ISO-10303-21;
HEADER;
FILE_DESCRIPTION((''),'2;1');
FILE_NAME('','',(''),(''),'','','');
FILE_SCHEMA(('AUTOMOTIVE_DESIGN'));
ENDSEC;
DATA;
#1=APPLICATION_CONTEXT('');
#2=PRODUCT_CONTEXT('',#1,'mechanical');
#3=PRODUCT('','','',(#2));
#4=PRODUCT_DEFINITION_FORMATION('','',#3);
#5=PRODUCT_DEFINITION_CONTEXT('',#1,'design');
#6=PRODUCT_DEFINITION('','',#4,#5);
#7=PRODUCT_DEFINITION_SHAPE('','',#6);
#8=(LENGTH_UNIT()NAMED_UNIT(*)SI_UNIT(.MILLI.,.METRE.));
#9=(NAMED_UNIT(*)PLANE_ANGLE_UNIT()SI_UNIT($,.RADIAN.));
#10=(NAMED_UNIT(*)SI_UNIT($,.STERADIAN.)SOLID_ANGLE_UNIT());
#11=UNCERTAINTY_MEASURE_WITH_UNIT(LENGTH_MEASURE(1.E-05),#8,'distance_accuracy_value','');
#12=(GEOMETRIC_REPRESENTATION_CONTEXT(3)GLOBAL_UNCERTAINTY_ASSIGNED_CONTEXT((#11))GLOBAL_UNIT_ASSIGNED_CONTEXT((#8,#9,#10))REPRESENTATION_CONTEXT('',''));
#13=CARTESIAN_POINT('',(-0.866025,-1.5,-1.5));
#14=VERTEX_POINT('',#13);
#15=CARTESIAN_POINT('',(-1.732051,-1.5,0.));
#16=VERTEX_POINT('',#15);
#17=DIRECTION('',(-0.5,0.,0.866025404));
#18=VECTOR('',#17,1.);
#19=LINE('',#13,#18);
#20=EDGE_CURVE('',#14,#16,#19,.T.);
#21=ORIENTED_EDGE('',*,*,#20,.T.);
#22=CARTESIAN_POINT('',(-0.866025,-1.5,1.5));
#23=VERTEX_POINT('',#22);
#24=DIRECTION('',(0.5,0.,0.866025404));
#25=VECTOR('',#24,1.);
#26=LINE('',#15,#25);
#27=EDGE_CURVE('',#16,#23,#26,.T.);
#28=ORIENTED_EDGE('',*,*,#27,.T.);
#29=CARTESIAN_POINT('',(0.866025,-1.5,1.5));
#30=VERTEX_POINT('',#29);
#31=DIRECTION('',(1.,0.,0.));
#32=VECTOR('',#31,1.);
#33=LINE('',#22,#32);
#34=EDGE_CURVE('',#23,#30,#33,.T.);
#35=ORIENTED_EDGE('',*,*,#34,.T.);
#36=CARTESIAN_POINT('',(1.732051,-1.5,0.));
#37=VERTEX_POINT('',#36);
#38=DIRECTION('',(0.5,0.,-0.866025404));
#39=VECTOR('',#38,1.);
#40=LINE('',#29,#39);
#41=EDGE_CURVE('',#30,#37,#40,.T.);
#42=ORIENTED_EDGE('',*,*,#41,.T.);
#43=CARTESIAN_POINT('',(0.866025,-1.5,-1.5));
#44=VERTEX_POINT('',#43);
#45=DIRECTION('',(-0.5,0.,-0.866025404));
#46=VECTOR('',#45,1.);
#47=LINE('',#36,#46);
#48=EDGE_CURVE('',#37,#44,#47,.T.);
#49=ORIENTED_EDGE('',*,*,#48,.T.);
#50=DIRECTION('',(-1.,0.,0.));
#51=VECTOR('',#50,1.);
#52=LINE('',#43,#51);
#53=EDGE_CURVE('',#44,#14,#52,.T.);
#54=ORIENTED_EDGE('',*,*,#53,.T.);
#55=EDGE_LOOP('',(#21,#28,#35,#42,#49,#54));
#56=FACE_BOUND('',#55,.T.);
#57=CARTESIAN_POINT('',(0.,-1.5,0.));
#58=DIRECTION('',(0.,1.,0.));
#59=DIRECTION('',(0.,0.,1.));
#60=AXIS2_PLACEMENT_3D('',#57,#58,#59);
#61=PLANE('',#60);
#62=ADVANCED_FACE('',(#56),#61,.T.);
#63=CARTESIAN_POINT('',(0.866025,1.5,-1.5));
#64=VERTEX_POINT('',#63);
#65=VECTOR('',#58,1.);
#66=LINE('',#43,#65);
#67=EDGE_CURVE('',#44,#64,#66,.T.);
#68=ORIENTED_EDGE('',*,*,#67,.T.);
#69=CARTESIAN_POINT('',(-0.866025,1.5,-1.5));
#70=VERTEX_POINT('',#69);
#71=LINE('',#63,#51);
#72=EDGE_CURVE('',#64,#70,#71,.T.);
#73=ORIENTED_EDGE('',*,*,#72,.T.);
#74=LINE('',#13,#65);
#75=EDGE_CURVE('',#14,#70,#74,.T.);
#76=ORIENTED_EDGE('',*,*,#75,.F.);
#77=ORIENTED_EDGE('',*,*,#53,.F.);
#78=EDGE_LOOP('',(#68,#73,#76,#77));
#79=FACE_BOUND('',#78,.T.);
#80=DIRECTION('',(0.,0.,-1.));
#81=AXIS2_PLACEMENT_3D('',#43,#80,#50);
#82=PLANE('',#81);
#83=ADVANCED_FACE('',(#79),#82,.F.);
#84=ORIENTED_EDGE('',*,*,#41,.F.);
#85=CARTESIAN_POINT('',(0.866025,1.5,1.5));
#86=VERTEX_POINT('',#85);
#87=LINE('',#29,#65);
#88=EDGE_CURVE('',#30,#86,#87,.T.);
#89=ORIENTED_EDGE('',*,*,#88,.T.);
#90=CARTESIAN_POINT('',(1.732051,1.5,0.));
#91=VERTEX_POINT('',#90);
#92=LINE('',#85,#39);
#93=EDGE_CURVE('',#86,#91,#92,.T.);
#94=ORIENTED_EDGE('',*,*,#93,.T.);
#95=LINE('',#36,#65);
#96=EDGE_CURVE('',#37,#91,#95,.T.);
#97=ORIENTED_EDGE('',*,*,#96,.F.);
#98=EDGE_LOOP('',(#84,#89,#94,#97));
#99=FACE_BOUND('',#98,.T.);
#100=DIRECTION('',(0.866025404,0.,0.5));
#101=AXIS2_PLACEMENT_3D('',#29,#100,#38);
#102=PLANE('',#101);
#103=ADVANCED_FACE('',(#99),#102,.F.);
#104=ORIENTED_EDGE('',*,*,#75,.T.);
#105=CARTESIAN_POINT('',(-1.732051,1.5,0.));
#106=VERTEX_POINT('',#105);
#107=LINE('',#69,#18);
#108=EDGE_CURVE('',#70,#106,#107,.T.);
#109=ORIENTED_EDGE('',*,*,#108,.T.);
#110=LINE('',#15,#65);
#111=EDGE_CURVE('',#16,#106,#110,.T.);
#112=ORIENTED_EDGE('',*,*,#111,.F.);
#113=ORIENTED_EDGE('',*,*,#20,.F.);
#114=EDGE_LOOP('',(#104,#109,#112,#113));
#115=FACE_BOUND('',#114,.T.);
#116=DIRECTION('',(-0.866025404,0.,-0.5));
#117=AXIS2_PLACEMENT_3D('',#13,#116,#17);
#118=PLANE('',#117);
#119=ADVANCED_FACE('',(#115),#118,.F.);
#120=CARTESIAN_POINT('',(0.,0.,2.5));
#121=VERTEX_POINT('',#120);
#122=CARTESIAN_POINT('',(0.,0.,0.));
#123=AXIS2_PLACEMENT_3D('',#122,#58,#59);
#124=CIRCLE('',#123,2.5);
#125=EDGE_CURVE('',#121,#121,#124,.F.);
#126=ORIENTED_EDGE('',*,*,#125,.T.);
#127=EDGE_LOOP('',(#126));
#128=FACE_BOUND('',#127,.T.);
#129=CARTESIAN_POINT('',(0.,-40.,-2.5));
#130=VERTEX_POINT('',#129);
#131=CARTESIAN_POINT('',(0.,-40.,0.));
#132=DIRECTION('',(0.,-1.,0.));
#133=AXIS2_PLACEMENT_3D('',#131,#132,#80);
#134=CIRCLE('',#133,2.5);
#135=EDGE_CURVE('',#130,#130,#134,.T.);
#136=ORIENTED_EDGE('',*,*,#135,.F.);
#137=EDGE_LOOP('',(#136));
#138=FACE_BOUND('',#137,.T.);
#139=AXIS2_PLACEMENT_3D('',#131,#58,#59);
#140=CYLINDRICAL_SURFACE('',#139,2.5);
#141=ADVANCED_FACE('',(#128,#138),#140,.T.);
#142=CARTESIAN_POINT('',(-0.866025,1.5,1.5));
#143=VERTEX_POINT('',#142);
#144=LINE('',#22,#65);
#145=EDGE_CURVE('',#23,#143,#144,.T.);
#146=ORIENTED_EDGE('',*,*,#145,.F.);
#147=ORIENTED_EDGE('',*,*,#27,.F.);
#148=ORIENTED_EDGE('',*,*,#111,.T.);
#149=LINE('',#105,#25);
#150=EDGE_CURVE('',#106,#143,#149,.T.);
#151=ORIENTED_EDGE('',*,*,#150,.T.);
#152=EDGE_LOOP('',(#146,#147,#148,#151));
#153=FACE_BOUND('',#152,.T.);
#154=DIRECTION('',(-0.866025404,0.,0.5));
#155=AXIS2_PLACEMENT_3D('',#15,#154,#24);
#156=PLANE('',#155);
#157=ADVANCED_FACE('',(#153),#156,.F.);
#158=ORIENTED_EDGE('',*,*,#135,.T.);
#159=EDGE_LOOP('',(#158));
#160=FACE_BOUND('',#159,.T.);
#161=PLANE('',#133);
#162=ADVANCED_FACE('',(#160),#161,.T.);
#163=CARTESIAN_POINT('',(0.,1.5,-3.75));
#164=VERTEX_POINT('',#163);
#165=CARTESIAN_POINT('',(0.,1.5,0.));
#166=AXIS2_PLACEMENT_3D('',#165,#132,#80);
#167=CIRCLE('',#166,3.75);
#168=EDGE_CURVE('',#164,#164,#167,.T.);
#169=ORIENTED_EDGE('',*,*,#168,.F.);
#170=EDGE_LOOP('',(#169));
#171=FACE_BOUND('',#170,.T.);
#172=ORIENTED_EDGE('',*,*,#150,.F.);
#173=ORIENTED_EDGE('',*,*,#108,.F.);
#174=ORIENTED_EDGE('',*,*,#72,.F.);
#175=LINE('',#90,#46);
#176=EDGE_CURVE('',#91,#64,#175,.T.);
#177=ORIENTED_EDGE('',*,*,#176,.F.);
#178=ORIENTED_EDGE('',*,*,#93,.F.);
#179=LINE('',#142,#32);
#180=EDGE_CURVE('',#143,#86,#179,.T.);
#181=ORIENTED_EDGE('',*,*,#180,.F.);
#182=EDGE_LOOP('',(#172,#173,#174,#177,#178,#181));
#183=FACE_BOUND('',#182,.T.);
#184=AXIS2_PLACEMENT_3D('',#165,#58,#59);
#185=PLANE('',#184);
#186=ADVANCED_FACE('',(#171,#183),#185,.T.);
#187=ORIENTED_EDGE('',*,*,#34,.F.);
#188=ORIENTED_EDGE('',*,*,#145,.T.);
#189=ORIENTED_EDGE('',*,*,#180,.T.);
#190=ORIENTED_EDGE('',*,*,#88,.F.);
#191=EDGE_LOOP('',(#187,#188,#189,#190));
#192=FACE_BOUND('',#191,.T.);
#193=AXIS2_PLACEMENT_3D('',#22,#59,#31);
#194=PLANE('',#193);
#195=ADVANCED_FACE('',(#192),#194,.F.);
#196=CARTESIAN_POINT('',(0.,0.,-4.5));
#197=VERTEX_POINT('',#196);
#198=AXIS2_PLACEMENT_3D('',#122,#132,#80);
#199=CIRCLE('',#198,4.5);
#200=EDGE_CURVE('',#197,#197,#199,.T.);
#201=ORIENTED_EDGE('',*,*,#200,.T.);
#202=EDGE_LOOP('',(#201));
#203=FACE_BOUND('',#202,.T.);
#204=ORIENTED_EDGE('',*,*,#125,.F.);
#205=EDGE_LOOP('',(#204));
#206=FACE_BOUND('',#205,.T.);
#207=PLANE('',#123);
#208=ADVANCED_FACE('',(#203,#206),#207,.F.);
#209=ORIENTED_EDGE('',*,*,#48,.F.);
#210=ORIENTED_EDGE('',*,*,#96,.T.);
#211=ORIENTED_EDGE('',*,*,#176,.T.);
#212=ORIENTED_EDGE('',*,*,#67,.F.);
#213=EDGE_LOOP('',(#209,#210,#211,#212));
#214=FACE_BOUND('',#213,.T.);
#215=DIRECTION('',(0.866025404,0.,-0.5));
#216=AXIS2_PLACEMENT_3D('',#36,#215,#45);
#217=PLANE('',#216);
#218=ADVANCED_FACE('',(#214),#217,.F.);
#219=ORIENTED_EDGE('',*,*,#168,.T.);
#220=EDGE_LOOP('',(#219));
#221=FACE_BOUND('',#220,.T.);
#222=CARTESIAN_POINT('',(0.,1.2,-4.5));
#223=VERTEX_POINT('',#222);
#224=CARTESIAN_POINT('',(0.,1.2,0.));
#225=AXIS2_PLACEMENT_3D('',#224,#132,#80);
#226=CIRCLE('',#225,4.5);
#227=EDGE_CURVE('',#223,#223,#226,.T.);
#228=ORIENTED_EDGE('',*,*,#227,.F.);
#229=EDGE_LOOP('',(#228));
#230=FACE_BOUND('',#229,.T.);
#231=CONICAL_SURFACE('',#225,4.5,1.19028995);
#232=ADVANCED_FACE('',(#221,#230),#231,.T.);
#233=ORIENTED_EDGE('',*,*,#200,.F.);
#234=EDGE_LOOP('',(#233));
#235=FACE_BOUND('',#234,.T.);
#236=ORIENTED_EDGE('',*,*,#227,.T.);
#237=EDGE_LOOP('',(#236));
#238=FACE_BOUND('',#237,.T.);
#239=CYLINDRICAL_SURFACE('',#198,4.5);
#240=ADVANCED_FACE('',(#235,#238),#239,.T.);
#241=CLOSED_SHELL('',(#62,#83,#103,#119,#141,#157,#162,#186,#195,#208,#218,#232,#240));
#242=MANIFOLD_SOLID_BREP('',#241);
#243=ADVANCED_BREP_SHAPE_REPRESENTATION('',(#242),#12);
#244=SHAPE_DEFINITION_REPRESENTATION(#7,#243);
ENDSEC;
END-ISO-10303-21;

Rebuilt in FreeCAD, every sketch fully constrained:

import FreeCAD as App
import Part
import Sketcher

V = App.Vector
Q = App.Units.Quantity


def add_polygon(sketch, points):
    """Adds a closed chain of lines whose ends are joined by coincident constraints."""
    first, n = sketch.GeometryCount, len(points)
    for a, b in zip(points, points[1:] + points[:1]):
        sketch.addGeometry(Part.LineSegment(App.Vector(*a, 0), App.Vector(*b, 0)), False)
    for i in range(n):
        sketch.addConstraint(Sketcher.Constraint("Coincident", first + i, 2, first + (i + 1) % n, 1))

doc = App.newDocument("Part")
params = doc.addObject("Spreadsheet::Sheet", "Params")
for row, (alias, value) in enumerate([
    ("sketch1_width", "4.5 mm"),
    ("sketch1_height", "1.5 mm"),
    ("sketch1_height2", "1.2 mm"),
    ("sketch1_width2", "3.75 mm"),
    ("revolution_angle", "360 deg"),
    ("sketch2_diameter", "5 mm"),
    ("pad1_length", "40 mm"),
    ("pocket1_length", "3 mm"),
], start=1):
    params.set(f"A{row}", alias)
    params.set(f"B{row}", "=" + value)
    params.setAlias(f"B{row}", alias)

body = doc.addObject("PartDesign::Body", "Body")

# Sketch on XY plane
sketch1 = body.newObject("Sketcher::SketchObject", "Sketch")
sketch1.AttachmentSupport = (doc.getObject("XY_Plane"), [""])
sketch1.MapMode = "FlatFace"
add_polygon(sketch1, [(0, 0), (0, 1.5), (-3.8, 1.5), (-4.5, 1.2), (-4.5, 0)])  # lines 0-4
sketch1.addConstraint([
    Sketcher.Constraint("Vertical", 0),
    Sketcher.Constraint("Horizontal", 1),
    Sketcher.Constraint("Vertical", 3),
    Sketcher.Constraint("Horizontal", 4),
    Sketcher.Constraint("Coincident", 4, 2, -1, 1),
    Sketcher.Constraint("DistanceX", 4, 1, 4, 2, 4.5),
    Sketcher.Constraint("DistanceY", 0, 1, 0, 2, 1.5),
    Sketcher.Constraint("DistanceY", 3, 2, 3, 1, 1.2),
    Sketcher.Constraint("DistanceX", 1, 2, 1, 1, 3.75),
])
sketch1.setExpression("Constraints[10]", "Params.sketch1_width")
sketch1.setExpression("Constraints[11]", "Params.sketch1_height")
sketch1.setExpression("Constraints[12]", "Params.sketch1_height2")
sketch1.setExpression("Constraints[13]", "Params.sketch1_width2")
revolution = body.newObject("PartDesign::Revolution", "Revolution")
revolution.Profile = sketch1
revolution.ReferenceAxis = (sketch1, ["V_Axis"])
revolution.setExpression("Angle", "Params.revolution_angle")

# Sketch on XZ plane
sketch2 = body.newObject("Sketcher::SketchObject", "Sketch001")
sketch2.AttachmentSupport = (doc.getObject("XZ_Plane"), [""])
sketch2.MapMode = "FlatFace"
sketch2.addGeometry(Part.Circle(V(0, 0, 0), V(0, 0, 1), 2.5), False)
sketch2.addConstraint([
    Sketcher.Constraint("Coincident", 0, 3, -1, 1),
    Sketcher.Constraint("Diameter", 0, 5.0),
])
sketch2.setExpression("Constraints[1]", "Params.sketch2_diameter")
pad1 = body.newObject("PartDesign::Pad", "Pad")
pad1.Profile = sketch2
pad1.setExpression("Length", "Params.pad1_length")

# Sketch on XZ plane
sketch3 = body.newObject("Sketcher::SketchObject", "Sketch002")
sketch3.AttachmentSupport = (doc.getObject("XZ_Plane"), [""])
sketch3.MapMode = "FlatFace"
sketch3.AttachmentOffset = App.Placement(V(0, 0, -1.5), App.Rotation())
add_polygon(sketch3, [(1.7, 0), (0.9, -1.5), (-0.9, -1.5), (-1.7, 0), (-0.9, 1.5), (0.9, 1.5)])  # lines 0-5
sketch3.addConstraint([
    Sketcher.Constraint("Horizontal", 1),
    Sketcher.Constraint("Horizontal", 4),
    Sketcher.Constraint("Symmetric", 0, 2, 3, 2, -1, 1),
    Sketcher.Constraint("Symmetric", 2, 2, 5, 2, -1, 1),
    Sketcher.Constraint("PointOnObject", 2, 2, -1),
    Sketcher.Constraint("Parallel", 2, 5),
    Sketcher.Constraint("Vertical", 1, 2, 3, 2),
    Sketcher.Constraint("Angle", 0, Q("-120 deg")),
    Sketcher.Constraint("DistanceY", 1, 2, 3, 2, 3.0),
    Sketcher.Constraint("DistanceX", 1, 2, 1, 1, 1.732051),
])
pocket1 = body.newObject("PartDesign::Pocket", "Pocket")
pocket1.Profile = sketch3
pocket1.setExpression("Length", "Params.pocket1_length")
pocket1.Reversed = True

doc.recompute()
